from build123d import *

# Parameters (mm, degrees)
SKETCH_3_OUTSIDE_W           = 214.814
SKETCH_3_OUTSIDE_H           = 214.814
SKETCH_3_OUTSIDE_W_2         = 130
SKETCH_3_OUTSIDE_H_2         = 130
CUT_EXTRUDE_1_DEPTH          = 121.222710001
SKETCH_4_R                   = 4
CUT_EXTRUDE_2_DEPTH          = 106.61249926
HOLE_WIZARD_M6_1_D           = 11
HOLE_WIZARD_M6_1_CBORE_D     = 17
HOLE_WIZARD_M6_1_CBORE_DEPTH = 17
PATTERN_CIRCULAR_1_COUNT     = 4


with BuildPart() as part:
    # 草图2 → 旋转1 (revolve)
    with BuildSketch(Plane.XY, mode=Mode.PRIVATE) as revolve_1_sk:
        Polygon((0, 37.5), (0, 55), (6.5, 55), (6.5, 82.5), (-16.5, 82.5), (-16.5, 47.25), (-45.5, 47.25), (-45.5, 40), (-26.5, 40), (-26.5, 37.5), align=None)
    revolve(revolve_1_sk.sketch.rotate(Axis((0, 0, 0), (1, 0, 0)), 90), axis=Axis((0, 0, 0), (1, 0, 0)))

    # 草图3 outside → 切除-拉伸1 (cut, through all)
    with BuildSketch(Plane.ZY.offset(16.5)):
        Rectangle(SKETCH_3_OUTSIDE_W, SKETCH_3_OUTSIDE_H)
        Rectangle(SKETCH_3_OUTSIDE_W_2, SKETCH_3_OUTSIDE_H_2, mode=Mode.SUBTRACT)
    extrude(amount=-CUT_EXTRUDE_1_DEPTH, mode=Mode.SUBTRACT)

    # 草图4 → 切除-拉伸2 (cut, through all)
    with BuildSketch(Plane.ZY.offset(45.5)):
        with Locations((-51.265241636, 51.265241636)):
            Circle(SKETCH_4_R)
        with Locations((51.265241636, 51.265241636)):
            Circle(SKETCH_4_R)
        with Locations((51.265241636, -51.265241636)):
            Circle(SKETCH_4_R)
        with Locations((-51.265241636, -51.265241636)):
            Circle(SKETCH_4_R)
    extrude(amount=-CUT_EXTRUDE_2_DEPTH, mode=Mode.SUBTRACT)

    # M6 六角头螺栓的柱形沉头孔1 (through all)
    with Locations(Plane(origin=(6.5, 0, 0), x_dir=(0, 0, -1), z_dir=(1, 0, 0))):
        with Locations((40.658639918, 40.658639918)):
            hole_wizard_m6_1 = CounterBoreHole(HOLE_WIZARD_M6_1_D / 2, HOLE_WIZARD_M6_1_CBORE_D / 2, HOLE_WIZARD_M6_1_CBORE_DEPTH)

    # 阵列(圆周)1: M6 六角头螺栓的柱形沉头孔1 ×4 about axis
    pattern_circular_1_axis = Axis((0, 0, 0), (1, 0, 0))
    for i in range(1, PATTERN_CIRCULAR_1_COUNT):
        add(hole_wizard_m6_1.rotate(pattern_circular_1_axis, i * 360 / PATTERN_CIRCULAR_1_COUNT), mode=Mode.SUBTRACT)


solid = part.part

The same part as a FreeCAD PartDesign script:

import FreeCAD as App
import Part
import Sketcher
from FreeCAD import Vector
Q = App.Units.Quantity

doc = App.newDocument("Part")
body = doc.addObject("PartDesign::Body", "Body")

# Sketch on XY plane
sketch1 = body.newObject("Sketcher::SketchObject", "Sketch")
sketch1.AttachmentSupport = (doc.getObject("XY_Plane"), [""])
sketch1.MapMode = "FlatFace"
sketch1.addGeometry([
    Part.LineSegment(Vector(0, 37.5, 0), Vector(0, 55, 0)),  # 0
    Part.LineSegment(Vector(0, 55, 0), Vector(6.5, 55, 0)),  # 1
    Part.LineSegment(Vector(6.5, 55, 0), Vector(6.5, 82.5, 0)),  # 2
    Part.LineSegment(Vector(6.5, 82.5, 0), Vector(-16.5, 82.5, 0)),  # 3
    Part.LineSegment(Vector(-16.5, 82.5, 0), Vector(-16.5, 47.2, 0)),  # 4
    Part.LineSegment(Vector(-16.5, 47.2, 0), Vector(-45.5, 47.2, 0)),  # 5
    Part.LineSegment(Vector(-45.5, 47.2, 0), Vector(-45.5, 40, 0)),  # 6
    Part.LineSegment(Vector(-45.5, 40, 0), Vector(-26.5, 40, 0)),  # 7
    Part.LineSegment(Vector(-26.5, 40, 0), Vector(-26.5, 37.5, 0)),  # 8
    Part.LineSegment(Vector(-26.5, 37.5, 0), Vector(0, 37.5, 0)),  # 9
], False)
sketch1.addConstraint([
    Sketcher.Constraint("Coincident", 0, 2, 1, 1),
    Sketcher.Constraint("Coincident", 1, 2, 2, 1),
    Sketcher.Constraint("Coincident", 2, 2, 3, 1),
    Sketcher.Constraint("Coincident", 3, 2, 4, 1),
    Sketcher.Constraint("Coincident", 4, 2, 5, 1),
    Sketcher.Constraint("Coincident", 5, 2, 6, 1),
    Sketcher.Constraint("Coincident", 6, 2, 7, 1),
    Sketcher.Constraint("Coincident", 7, 2, 8, 1),
    Sketcher.Constraint("Coincident", 8, 2, 9, 1),
    Sketcher.Constraint("Coincident", 9, 2, 0, 1),
    Sketcher.Constraint("Vertical", 0),
    Sketcher.Constraint("Horizontal", 1),
    Sketcher.Constraint("Vertical", 2),
    Sketcher.Constraint("Horizontal", 3),
    Sketcher.Constraint("Vertical", 4),
    Sketcher.Constraint("Horizontal", 5),
    Sketcher.Constraint("Vertical", 6),
    Sketcher.Constraint("Horizontal", 7),
    Sketcher.Constraint("Vertical", 8),
    Sketcher.Constraint("Horizontal", 9),
    Sketcher.Constraint("PointOnObject", 0, 2, -2),
    Sketcher.Constraint("DistanceX", 3, 2, 3, 1, Q("23 mm")),
    Sketcher.Constraint("DistanceX", 5, 2, 5, 1, Q("29 mm")),
    Sketcher.Constraint("DistanceX", 7, 1, 7, 2, Q("19 mm")),
    Sketcher.Constraint("DistanceX", 1, 1, 1, 2, Q("6.5 mm")),
    Sketcher.Constraint("DistanceY", 0, 1, 0, 2, Q("17.5 mm")),
    Sketcher.Constraint("DistanceY", 2, 1, 2, 2, Q("27.5 mm")),
    Sketcher.Constraint("DistanceY", 8, 2, 8, 1, Q("2.5 mm")),
    Sketcher.Constraint("DistanceY", -1, 1, 0, 2, Q("55 mm")),
    Sketcher.Constraint("DistanceY", 4, 2, 4, 1, Q("35.25 mm")),
])
revolution = body.newObject("PartDesign::Revolution", "Revolution")
revolution.Profile = sketch1
revolution.ReferenceAxis = (sketch1, ["H_Axis"])
revolution.Angle = 360

# Sketch on YZ plane
sketch2 = body.newObject("Sketcher::SketchObject", "Sketch001")
sketch2.AttachmentSupport = (doc.getObject("YZ_Plane"), [""])
sketch2.MapMode = "FlatFace"
sketch2.AttachmentOffset = App.Placement(Vector(0, 0, -16.5), App.Rotation())
sketch2.addGeometry([
    Part.LineSegment(Vector(107, -107, 0), Vector(-107, -107, 0)),  # 0
    Part.LineSegment(Vector(-107, -107, 0), Vector(-107, 107, 0)),  # 1
    Part.LineSegment(Vector(-107, 107, 0), Vector(107, 107, 0)),  # 2
    Part.LineSegment(Vector(107, 107, 0), Vector(107, -107, 0)),  # 3
    Part.LineSegment(Vector(-65, 65, 0), Vector(-65, -65, 0)),  # 4
    Part.LineSegment(Vector(-65, -65, 0), Vector(65, -65, 0)),  # 5
    Part.LineSegment(Vector(65, -65, 0), Vector(65, 65, 0)),  # 6
    Part.LineSegment(Vector(65, 65, 0), Vector(-65, 65, 0)),  # 7
], False)
sketch2.addConstraint([
    Sketcher.Constraint("Coincident", 0, 2, 1, 1),
    Sketcher.Constraint("Coincident", 1, 2, 2, 1),
    Sketcher.Constraint("Coincident", 2, 2, 3, 1),
    Sketcher.Constraint("Coincident", 3, 2, 0, 1),
    Sketcher.Constraint("Coincident", 4, 2, 5, 1),
    Sketcher.Constraint("Coincident", 5, 2, 6, 1),
    Sketcher.Constraint("Coincident", 6, 2, 7, 1),
    Sketcher.Constraint("Coincident", 7, 2, 4, 1),
    Sketcher.Constraint("Horizontal", 0),
    Sketcher.Constraint("Vertical", 1),
    Sketcher.Constraint("Horizontal", 2),
    Sketcher.Constraint("Vertical", 3),
    Sketcher.Constraint("Vertical", 4),
    Sketcher.Constraint("Horizontal", 5),
    Sketcher.Constraint("Vertical", 6),
    Sketcher.Constraint("Horizontal", 7),
    Sketcher.Constraint("Symmetric", 0, 2, 2, 2, -1, 1),
    Sketcher.Constraint("Symmetric", 4, 2, 6, 2, -1, 1),
    Sketcher.Constraint("Equal", 2, 1),
    Sketcher.Constraint("Equal", 7, 4),
    Sketcher.Constraint("DistanceX", 5, 1, 5, 2, Q("130 mm")),
    Sketcher.Constraint("DistanceX", 0, 2, 0, 1, Q("214.814 mm")),
])
pocket1 = body.newObject("PartDesign::Pocket", "Pocket")
pocket1.Profile = sketch2
pocket1.Type = "ThroughAll"
pocket1.Reversed = True

# Sketch on YZ plane
sketch3 = body.newObject("Sketcher::SketchObject", "Sketch002")
sketch3.AttachmentSupport = (doc.getObject("YZ_Plane"), [""])
sketch3.MapMode = "FlatFace"
sketch3.AttachmentOffset = App.Placement(Vector(0, 0, -45.5), App.Rotation())
sketch3.addGeometry([
    Part.Circle(Vector(51.3, -51.3, 0), Vector(0, 0, 1), 4),
    Part.Circle(Vector(51.3, 51.3, 0), Vector(0, 0, 1), 4),
    Part.Circle(Vector(-51.3, 51.3, 0), Vector(0, 0, 1), 4),
    Part.Circle(Vector(-51.3, -51.3, 0), Vector(0, 0, 1), 4),
], False)
sketch3.addConstraint([
    Sketcher.Constraint("Equal", 0, 1),
    Sketcher.Constraint("Equal", 1, 2),
    Sketcher.Constraint("Equal", 2, 3),
    Sketcher.Constraint("Symmetric", 0, 3, 2, 3, -1, 1),
    Sketcher.Constraint("Symmetric", 1, 3, 3, 3, -1, 1),
    Sketcher.Constraint("Symmetric", 1, 3, 2, 3, -2),
    Sketcher.Constraint("Diameter", 0, Q("8 mm")),
    Sketcher.Constraint("DistanceX", -1, 1, 0, 3, Q("51.265242 mm")),
    Sketcher.Constraint("DistanceY", 0, 3, -1, 1, Q("51.265242 mm")),
])
pocket2 = body.newObject("PartDesign::Pocket", "Pocket001")
pocket2.Profile = sketch3
pocket2.Type = "ThroughAll"
pocket2.Reversed = True

# Sketch on YZ plane
sketch4 = body.newObject("Sketcher::SketchObject", "Sketch003")
sketch4.AttachmentSupport = (doc.getObject("YZ_Plane"), [""])
sketch4.MapMode = "FlatFace"
sketch4.AttachmentOffset = App.Placement(Vector(0, 0, 6.5), App.Rotation())
sketch4.addGeometry(Part.Circle(Vector(41, -41, 0), Vector(0, 0, 1), 6), False)
sketch4.addConstraint([
    Sketcher.Constraint("Diameter", 0, Q("11 mm")),
    Sketcher.Constraint("DistanceX", -1, 1, 0, 3, Q("40.65864 mm")),
    Sketcher.Constraint("DistanceY", 0, 3, -1, 1, Q("40.65864 mm")),
])
doc.recompute()
hole = body.newObject("PartDesign::Hole", "Hole")
hole.Profile = sketch4
hole.ThreadType = "None"
hole.Diameter = 11
hole.DepthType = "ThroughAll"
hole.HoleCutType = "Counterbore"
hole.HoleCutDiameter = 17
hole.HoleCutDepth = 17
doc.recompute()

polarpattern = body.newObject("PartDesign::PolarPattern", "PolarPattern")
polarpattern.Originals = [hole]
polarpattern.Axis = (doc.getObject("X_Axis"), [""])
polarpattern.Angle = 360
polarpattern.Occurrences = 4
body.Tip = polarpattern

doc.recompute()
